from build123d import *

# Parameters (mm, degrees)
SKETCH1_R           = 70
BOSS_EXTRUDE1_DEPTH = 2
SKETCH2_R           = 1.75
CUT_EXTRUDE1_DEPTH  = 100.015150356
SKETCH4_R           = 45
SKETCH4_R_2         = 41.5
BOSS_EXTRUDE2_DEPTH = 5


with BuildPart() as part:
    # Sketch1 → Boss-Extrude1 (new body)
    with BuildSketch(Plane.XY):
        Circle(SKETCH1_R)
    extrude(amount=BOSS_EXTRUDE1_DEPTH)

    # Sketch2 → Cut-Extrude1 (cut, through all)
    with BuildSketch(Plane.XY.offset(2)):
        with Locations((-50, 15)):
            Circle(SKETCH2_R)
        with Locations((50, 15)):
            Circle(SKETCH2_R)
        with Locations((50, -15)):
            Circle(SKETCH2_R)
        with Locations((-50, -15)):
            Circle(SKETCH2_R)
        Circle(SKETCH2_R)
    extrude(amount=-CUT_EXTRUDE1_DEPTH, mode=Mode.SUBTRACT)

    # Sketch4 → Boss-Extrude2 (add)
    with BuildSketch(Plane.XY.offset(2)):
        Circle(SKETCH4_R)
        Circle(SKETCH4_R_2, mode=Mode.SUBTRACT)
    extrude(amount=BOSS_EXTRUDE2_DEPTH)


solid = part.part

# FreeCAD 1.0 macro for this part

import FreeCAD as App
import Part
import Sketcher

doc = App.newDocument("Part")
body = doc.addObject("PartDesign::Body", "Body")

sketch1 = body.newObject("Sketcher::SketchObject", "Sketch")
sketch1.AttachmentSupport = (doc.getObject("XY_Plane"), [""])
sketch1.MapMode = "FlatFace"
sketch1.addGeometry(Part.Circle(App.Vector(0, 0, 0), App.Vector(0, 0, 1), 70), False)
sketch1.addConstraint(Sketcher.Constraint("Coincident", 0, 3, -1, 1))
sketch1.addConstraint(Sketcher.Constraint("Diameter", 0, 140.0))
pad1 = body.newObject("PartDesign::Pad", "Pad")
pad1.Profile = sketch1
pad1.Length = 2

sketch2 = body.newObject("Sketcher::SketchObject", "Sketch001")
sketch2.AttachmentSupport = (doc.getObject("XY_Plane"), [""])
sketch2.MapMode = "FlatFace"
sketch2.AttachmentOffset = App.Placement(App.Vector(0, 0, 2), App.Rotation())
sketch2.addGeometry(Part.Circle(App.Vector(-50, 15, 0), App.Vector(0, 0, 1), 1.8), False)
sketch2.addGeometry(Part.Circle(App.Vector(50, 15, 0), App.Vector(0, 0, 1), 1.8), False)
sketch2.addGeometry(Part.Circle(App.Vector(50, -15, 0), App.Vector(0, 0, 1), 1.8), False)
sketch2.addGeometry(Part.Circle(App.Vector(-50, -15, 0), App.Vector(0, 0, 1), 1.8), False)
sketch2.addGeometry(Part.Circle(App.Vector(0, 0, 0), App.Vector(0, 0, 1), 1.8), False)
sketch2.addConstraint(Sketcher.Constraint("Coincident", 4, 3, -1, 1))
sketch2.addConstraint(Sketcher.Constraint("Equal", 0, 1))
sketch2.addConstraint(Sketcher.Constraint("Equal", 1, 2))
sketch2.addConstraint(Sketcher.Constraint("Equal", 2, 3))
sketch2.addConstraint(Sketcher.Constraint("Equal", 3, 4))
sketch2.addConstraint(Sketcher.Constraint("Symmetric", 0, 3, 2, 3, -1, 1))
sketch2.addConstraint(Sketcher.Constraint("Symmetric", 1, 3, 3, 3, -1, 1))
sketch2.addConstraint(Sketcher.Constraint("Symmetric", 0, 3, 1, 3, -2))
sketch2.addConstraint(Sketcher.Constraint("Diameter", 0, 3.5))
sketch2.addConstraint(Sketcher.Constraint("DistanceX", 0, 3, -1, 1, 50.0))
sketch2.addConstraint(Sketcher.Constraint("DistanceY", -1, 1, 0, 3, 15.0))
pocket1 = body.newObject("PartDesign::Pocket", "Pocket")
pocket1.Profile = sketch2
pocket1.Type = "ThroughAll"

sketch3 = body.newObject("Sketcher::SketchObject", "Sketch002")
sketch3.AttachmentSupport = (doc.getObject("XY_Plane"), [""])
sketch3.MapMode = "FlatFace"
sketch3.AttachmentOffset = App.Placement(App.Vector(0, 0, 2), App.Rotation())
sketch3.addGeometry(Part.Circle(App.Vector(0, 0, 0), App.Vector(0, 0, 1), 45), False)
sketch3.addGeometry(Part.Circle(App.Vector(0, 0, 0), App.Vector(0, 0, 1), 42), False)
sketch3.addConstraint(Sketcher.Constraint("Coincident", 0, 3, -1, 1))
sketch3.addConstraint(Sketcher.Constraint("Coincident", 1, 3, -1, 1))
sketch3.addConstraint(Sketcher.Constraint("Diameter", 0, 90.0))
sketch3.addConstraint(Sketcher.Constraint("Diameter", 1, 83.0))
pad2 = body.newObject("PartDesign::Pad", "Pad001")
pad2.Profile = sketch3
pad2.Length = 5

doc.recompute()
